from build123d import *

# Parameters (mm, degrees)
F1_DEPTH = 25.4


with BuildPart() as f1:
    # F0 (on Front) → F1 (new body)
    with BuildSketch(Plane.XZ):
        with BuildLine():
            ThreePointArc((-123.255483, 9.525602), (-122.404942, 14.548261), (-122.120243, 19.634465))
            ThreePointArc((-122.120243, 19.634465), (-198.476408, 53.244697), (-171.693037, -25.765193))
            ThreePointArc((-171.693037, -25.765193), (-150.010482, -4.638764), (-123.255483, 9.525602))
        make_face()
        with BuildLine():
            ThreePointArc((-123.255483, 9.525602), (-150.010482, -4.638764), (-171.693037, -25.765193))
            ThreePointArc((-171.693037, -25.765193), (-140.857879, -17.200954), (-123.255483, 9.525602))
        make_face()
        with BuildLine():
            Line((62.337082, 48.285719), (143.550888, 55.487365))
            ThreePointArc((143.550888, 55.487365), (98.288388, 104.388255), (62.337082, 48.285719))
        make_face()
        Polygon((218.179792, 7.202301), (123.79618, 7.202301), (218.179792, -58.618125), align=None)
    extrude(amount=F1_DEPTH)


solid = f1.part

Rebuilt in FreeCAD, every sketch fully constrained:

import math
import FreeCAD as App
import Part
import Sketcher

V = App.Vector
Q = App.Units.Quantity


def add_polygon(sketch, points):
    """Adds a closed chain of lines whose ends are joined by coincident constraints."""
    first, n = sketch.GeometryCount, len(points)
    for a, b in zip(points, points[1:] + points[:1]):
        sketch.addGeometry(Part.LineSegment(App.Vector(*a, 0), App.Vector(*b, 0)), False)
    for i in range(n):
        sketch.addConstraint(Sketcher.Constraint("Coincident", first + i, 2, first + (i + 1) % n, 1))

doc = App.newDocument("Part")
params = doc.addObject("Spreadsheet::Sheet", "Params")
for row, (alias, value) in enumerate([
    ("pad1_length", "1 in"),
], start=1):
    params.set(f"A{row}", alias)
    params.set(f"B{row}", "=" + value)
    params.setAlias(f"B{row}", alias)

body = doc.addObject("PartDesign::Body", "Body")
body.AllowCompound = True

# Sketch on XZ plane
sketch1 = body.newObject("Sketcher::SketchObject", "Sketch")
sketch1.AttachmentSupport = (doc.getObject("XZ_Plane"), [""])
sketch1.MapMode = "FlatFace"
sketch1.addGeometry(Part.ArcOfCircle(Part.Circle(V(-167.695538, 19.634461, 0), V(0, 0, 1), 45.575295), math.radians(-12.815111), math.radians(0.000005)), False)  # 0
sketch1.addGeometry(Part.ArcOfCircle(Part.Circle(V(-167.695552, 19.634465, 0), V(0, 0, 1), 45.575309), math.radians(0), math.radians(264.968027)), False)  # 1
sketch1.addGeometry(Part.ArcOfCircle(Part.Circle(V(-167.695553, 19.634467, 0), V(0, 0, 1), 45.575311), math.radians(-95.031971), math.radians(-12.815114)), False)  # 2
sketch1.addGeometry(Part.LineSegment(V(62.337082, 48.285719, 0), V(143.550888, 55.487365, 0)), False)  # 3
sketch1.addGeometry(Part.ArcOfCircle(Part.Circle(V(102.008696, 62.433905, 0), V(0, 0, 1), 42.118976), math.radians(-9.492972), math.radians(199.627886)), False)  # 4
add_polygon(sketch1, [(218.179792, 7.202301), (123.79618, 7.202301), (218.179792, -58.618125)])  # lines 5-7
sketch1.addConstraint([
    Sketcher.Constraint("Tangent", 0, 2, 1, 1),
    Sketcher.Constraint("Tangent", 1, 2, 2, 1),
    Sketcher.Constraint("Tangent", 2, 2, 0, 1),
    Sketcher.Constraint("Coincident", 3, 1, 4, 2),
    Sketcher.Constraint("Coincident", 4, 1, 3, 2),
    Sketcher.Constraint("Horizontal", 5),
    Sketcher.Constraint("Vertical", 7),
    Sketcher.Constraint("Horizontal", 2, 3, 0, 2),
    Sketcher.Constraint("Radius", 1, 45.575309),
    Sketcher.Constraint("DistanceY", 6, 2, -1, 1, Q("2.3078002 in")),
    Sketcher.Constraint("Radius", 4, 42.118976),
    Sketcher.Constraint("DistanceX", 5, 2, 5, 1, 94.383612),
    Sketcher.Constraint("DistanceY", -1, 1, 5, 2, 7.202301),
    Sketcher.Constraint("DistanceX", 1, 2, 0, 3, 3.997499),
    Sketcher.Constraint("DistanceY", 1, 2, 4, 3, 88.199098),
    Sketcher.Constraint("DistanceY", 0, 2, 4, 1, 35.8529),
    Sketcher.Constraint("DistanceX", 3, 1, 5, 2, 61.459098),
    Sketcher.Constraint("DistanceY", 5, 2, 2, 2, 2.323301),
    Sketcher.Constraint("DistanceX", 0, 3, -1, 1, 167.695538),
    Sketcher.Constraint("DistanceY", -1, 1, 0, 3, 19.634461),
    Sketcher.Constraint("DistanceY", -1, 1, 3, 1, 48.285719),
    Sketcher.Constraint("DistanceX", -1, 1, 5, 2, 123.79618),
])
pad1 = body.newObject("PartDesign::Pad", "Pad")
pad1.Profile = sketch1
pad1.setExpression("Length", "Params.pad1_length")

doc.recompute()
